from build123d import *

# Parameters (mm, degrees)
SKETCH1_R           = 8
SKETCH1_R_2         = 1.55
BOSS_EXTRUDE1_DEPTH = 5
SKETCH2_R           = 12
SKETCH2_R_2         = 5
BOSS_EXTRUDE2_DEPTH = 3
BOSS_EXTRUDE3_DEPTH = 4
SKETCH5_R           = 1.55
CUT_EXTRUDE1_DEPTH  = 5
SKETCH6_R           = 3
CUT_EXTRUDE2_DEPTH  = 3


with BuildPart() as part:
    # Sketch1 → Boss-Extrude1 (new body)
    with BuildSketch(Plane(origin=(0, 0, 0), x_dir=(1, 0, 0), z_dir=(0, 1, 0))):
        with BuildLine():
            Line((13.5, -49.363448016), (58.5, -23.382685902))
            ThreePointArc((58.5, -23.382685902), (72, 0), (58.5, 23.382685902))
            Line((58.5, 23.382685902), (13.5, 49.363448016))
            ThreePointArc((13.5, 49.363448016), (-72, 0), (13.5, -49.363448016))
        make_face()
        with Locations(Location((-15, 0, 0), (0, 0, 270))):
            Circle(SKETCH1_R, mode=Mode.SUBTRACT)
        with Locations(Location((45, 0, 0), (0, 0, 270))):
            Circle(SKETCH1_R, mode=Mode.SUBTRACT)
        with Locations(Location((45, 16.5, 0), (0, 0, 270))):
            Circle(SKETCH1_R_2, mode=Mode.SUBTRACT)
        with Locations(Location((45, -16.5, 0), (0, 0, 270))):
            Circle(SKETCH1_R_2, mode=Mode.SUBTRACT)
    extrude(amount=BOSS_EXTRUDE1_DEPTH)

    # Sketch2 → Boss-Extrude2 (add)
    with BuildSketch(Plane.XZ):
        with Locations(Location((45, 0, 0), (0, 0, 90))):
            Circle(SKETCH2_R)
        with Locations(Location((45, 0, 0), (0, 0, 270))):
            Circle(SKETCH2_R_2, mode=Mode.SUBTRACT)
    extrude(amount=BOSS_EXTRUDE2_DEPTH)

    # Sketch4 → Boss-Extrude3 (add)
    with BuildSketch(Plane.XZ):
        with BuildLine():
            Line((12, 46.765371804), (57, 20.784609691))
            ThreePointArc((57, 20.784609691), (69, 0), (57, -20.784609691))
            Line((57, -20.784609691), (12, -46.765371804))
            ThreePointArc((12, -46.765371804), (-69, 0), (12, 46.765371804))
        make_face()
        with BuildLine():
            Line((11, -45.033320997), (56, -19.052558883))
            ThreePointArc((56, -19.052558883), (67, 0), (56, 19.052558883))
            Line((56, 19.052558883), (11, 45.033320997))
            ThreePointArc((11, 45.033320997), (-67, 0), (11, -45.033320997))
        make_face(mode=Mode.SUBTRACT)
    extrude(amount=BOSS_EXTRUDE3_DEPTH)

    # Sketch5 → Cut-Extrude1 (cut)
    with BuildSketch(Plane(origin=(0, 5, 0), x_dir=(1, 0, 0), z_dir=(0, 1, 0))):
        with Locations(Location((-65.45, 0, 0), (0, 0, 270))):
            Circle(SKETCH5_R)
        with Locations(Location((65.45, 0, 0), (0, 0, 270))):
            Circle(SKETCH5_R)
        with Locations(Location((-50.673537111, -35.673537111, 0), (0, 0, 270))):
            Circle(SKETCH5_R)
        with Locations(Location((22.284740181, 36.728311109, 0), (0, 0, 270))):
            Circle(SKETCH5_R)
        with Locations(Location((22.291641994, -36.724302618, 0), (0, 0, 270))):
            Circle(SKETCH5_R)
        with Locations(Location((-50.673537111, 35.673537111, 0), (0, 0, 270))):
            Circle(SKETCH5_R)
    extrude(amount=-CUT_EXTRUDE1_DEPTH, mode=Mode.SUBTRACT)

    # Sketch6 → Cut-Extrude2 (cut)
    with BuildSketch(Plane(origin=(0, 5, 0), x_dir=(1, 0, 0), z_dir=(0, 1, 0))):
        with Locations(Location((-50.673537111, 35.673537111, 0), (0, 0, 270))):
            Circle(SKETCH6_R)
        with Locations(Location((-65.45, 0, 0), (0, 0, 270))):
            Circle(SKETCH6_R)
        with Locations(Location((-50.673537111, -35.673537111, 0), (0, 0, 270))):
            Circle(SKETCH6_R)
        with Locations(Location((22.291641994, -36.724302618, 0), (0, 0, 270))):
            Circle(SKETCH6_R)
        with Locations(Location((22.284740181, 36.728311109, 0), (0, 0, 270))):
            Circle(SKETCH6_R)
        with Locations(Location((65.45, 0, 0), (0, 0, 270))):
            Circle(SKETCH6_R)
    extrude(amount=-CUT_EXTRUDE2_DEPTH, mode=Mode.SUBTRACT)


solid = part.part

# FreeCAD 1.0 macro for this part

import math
import FreeCAD as App
import Part
import Sketcher
Q = App.Units.Quantity

doc = App.newDocument("Part")
body = doc.addObject("PartDesign::Body", "Body")

# Sketch on XZ plane
sketch1 = body.newObject("Sketcher::SketchObject", "Sketch")
sketch1.AttachmentSupport = (doc.getObject("XZ_Plane"), [""])
sketch1.MapMode = "FlatFace"
sketch1.addGeometry(Part.LineSegment(App.Vector(13.5, 49.4, 0), App.Vector(58.5, 23.4, 0)), False)
sketch1.addGeometry(Part.ArcOfCircle(Part.Circle(App.Vector(45, 0, 0), App.Vector(0, 0, 1), 27), math.radians(-60), math.radians(60)), False)
sketch1.addGeometry(Part.LineSegment(App.Vector(58.5, -23.4, 0), App.Vector(13.5, -49.4, 0)), False)
sketch1.addGeometry(Part.ArcOfCircle(Part.Circle(App.Vector(-15, 0, 0), App.Vector(0, 0, 1), 57), math.radians(60), math.radians(300)), False)
sketch1.addGeometry(Part.Circle(App.Vector(45, 16.5, 0), App.Vector(0, 0, 1), 1.6), False)
sketch1.addGeometry(Part.Circle(App.Vector(-15, 0, 0), App.Vector(0, 0, 1), 8), False)
sketch1.addGeometry(Part.Circle(App.Vector(45, 0, 0), App.Vector(0, 0, 1), 8), False)
sketch1.addGeometry(Part.Circle(App.Vector(45, -16.5, 0), App.Vector(0, 0, 1), 1.6), False)
sketch1.addConstraint(Sketcher.Constraint("Tangent", 0, 2, 1, 2))
sketch1.addConstraint(Sketcher.Constraint("Tangent", 1, 1, 2, 1))
sketch1.addConstraint(Sketcher.Constraint("Tangent", 2, 2, 3, 2))
sketch1.addConstraint(Sketcher.Constraint("Tangent", 3, 1, 0, 1))
sketch1.addConstraint(Sketcher.Constraint("Coincident", 5, 3, 3, 3))
sketch1.addConstraint(Sketcher.Constraint("Coincident", 6, 3, 1, 3))
sketch1.addConstraint(Sketcher.Constraint("Equal", 5, 6))
sketch1.addConstraint(Sketcher.Constraint("Equal", 4, 7))
sketch1.addConstraint(Sketcher.Constraint("Symmetric", 4, 3, 7, 3, -1))
sketch1.addConstraint(Sketcher.Constraint("Symmetric", 0, 2, 1, 1, -1))
sketch1.addConstraint(Sketcher.Constraint("Vertical", 1, 3, 4, 3))
sketch1.addConstraint(Sketcher.Constraint("Diameter", 5, 16.0))
sketch1.addConstraint(Sketcher.Constraint("Radius", 1, 27.0))
sketch1.addConstraint(Sketcher.Constraint("Radius", 3, 57.0))
sketch1.addConstraint(Sketcher.Constraint("Diameter", 4, 3.1))
sketch1.addConstraint(Sketcher.Constraint("Angle", 0, Q("-30 deg")))
sketch1.addConstraint(Sketcher.Constraint("DistanceX", -1, 1, 1, 3, 45.0))
sketch1.addConstraint(Sketcher.Constraint("DistanceY", 7, 3, 4, 3, 33.0))
pad1 = body.newObject("PartDesign::Pad", "Pad")
pad1.Profile = sketch1
pad1.Length = 5
pad1.Reversed = True

# Sketch on XZ plane
sketch2 = body.newObject("Sketcher::SketchObject", "Sketch001")
sketch2.AttachmentSupport = (doc.getObject("XZ_Plane"), [""])
sketch2.MapMode = "FlatFace"
sketch2.addGeometry(Part.Circle(App.Vector(45, 0, 0), App.Vector(0, 0, 1), 12), False)
sketch2.addGeometry(Part.Circle(App.Vector(45, 0, 0), App.Vector(0, 0, 1), 5), False)
sketch2.addConstraint(Sketcher.Constraint("Coincident", 1, 3, 0, 3))
sketch2.addConstraint(Sketcher.Constraint("PointOnObject", 0, 3, -1))
sketch2.addConstraint(Sketcher.Constraint("Diameter", 0, 24.0))
sketch2.addConstraint(Sketcher.Constraint("Diameter", 1, 10.0))
sketch2.addConstraint(Sketcher.Constraint("DistanceX", -1, 1, 0, 3, 45.0))
pad2 = body.newObject("PartDesign::Pad", "Pad001")
pad2.Profile = sketch2
pad2.Length = 3

# Sketch on XZ plane
sketch3 = body.newObject("Sketcher::SketchObject", "Sketch002")
sketch3.AttachmentSupport = (doc.getObject("XZ_Plane"), [""])
sketch3.MapMode = "FlatFace"
sketch3.addGeometry(Part.LineSegment(App.Vector(57, 21, 0), App.Vector(12, 47, 0)), False)
sketch3.addGeometry(Part.ArcOfCircle(Part.Circle(App.Vector(-15, 0, 0), App.Vector(0, 0, 1), 54), math.radians(60), math.radians(300)), False)
sketch3.addGeometry(Part.LineSegment(App.Vector(12, -47, 0), App.Vector(57, -21, 0)), False)
sketch3.addGeometry(Part.ArcOfCircle(Part.Circle(App.Vector(45, 0, 0), App.Vector(0, 0, 1), 24), math.radians(-60), math.radians(60)), False)
sketch3.addGeometry(Part.ArcOfCircle(Part.Circle(App.Vector(-15, 0, 0), App.Vector(0, 0, 1), 52), math.radians(60), math.radians(300)), False)
sketch3.addGeometry(Part.LineSegment(App.Vector(11, 45, 0), App.Vector(56, 19, 0)), False)
sketch3.addGeometry(Part.ArcOfCircle(Part.Circle(App.Vector(45, 0, 0), App.Vector(0, 0, 1), 22), math.radians(-60), math.radians(60)), False)
sketch3.addGeometry(Part.LineSegment(App.Vector(56, -19, 0), App.Vector(11, -45, 0)), False)
sketch3.addConstraint(Sketcher.Constraint("Tangent", 0, 2, 1, 1))
sketch3.addConstraint(Sketcher.Constraint("Tangent", 1, 2, 2, 1))
sketch3.addConstraint(Sketcher.Constraint("Tangent", 2, 2, 3, 1))
sketch3.addConstraint(Sketcher.Constraint("Tangent", 3, 2, 0, 1))
sketch3.addConstraint(Sketcher.Constraint("Tangent", 4, 1, 5, 1))
sketch3.addConstraint(Sketcher.Constraint("Tangent", 5, 2, 6, 2))
sketch3.addConstraint(Sketcher.Constraint("Tangent", 6, 1, 7, 1))
sketch3.addConstraint(Sketcher.Constraint("Tangent", 7, 2, 4, 2))
sketch3.addConstraint(Sketcher.Constraint("Coincident", 4, 3, 1, 3))
sketch3.addConstraint(Sketcher.Constraint("Coincident", 6, 3, 3, 3))
sketch3.addConstraint(Sketcher.Constraint("Symmetric", 0, 2, 1, 2, -1))
sketch3.addConstraint(Sketcher.Constraint("Parallel", 0, 5))
sketch3.addConstraint(Sketcher.Constraint("Radius", 1, 54.0))
sketch3.addConstraint(Sketcher.Constraint("Radius", 3, 24.0))
sketch3.addConstraint(Sketcher.Constraint("Radius", 4, 52.0))
sketch3.addConstraint(Sketcher.Constraint("Angle", 0, Q("150 deg")))
sketch3.addConstraint(Sketcher.Constraint("DistanceX", 1, 3, -1, 1, 15.0))
pad3 = body.newObject("PartDesign::Pad", "Pad002")
pad3.Profile = sketch3
pad3.Length = 4

# Sketch on XZ plane
sketch4 = body.newObject("Sketcher::SketchObject", "Sketch003")
sketch4.AttachmentSupport = (doc.getObject("XZ_Plane"), [""])
sketch4.MapMode = "FlatFace"
sketch4.AttachmentOffset = App.Placement(App.Vector(0, 0, -5), App.Rotation())
sketch4.addGeometry(Part.Circle(App.Vector(-65.5, 0, 0), App.Vector(0, 0, 1), 1.6), False)
sketch4.addGeometry(Part.Circle(App.Vector(65.5, 0, 0), App.Vector(0, 0, 1), 1.6), False)
sketch4.addGeometry(Part.Circle(App.Vector(-50.7, 35.7, 0), App.Vector(0, 0, 1), 1.6), False)
sketch4.addGeometry(Part.Circle(App.Vector(22.3, -36.7, 0), App.Vector(0, 0, 1), 1.6), False)
sketch4.addGeometry(Part.Circle(App.Vector(22.3, 36.7, 0), App.Vector(0, 0, 1), 1.6), False)
sketch4.addGeometry(Part.Circle(App.Vector(-50.7, -35.7, 0), App.Vector(0, 0, 1), 1.6), False)
sketch4.addConstraint(Sketcher.Constraint("Equal", 0, 1))
sketch4.addConstraint(Sketcher.Constraint("Equal", 1, 2))
sketch4.addConstraint(Sketcher.Constraint("Equal", 2, 3))
sketch4.addConstraint(Sketcher.Constraint("Equal", 3, 4))
sketch4.addConstraint(Sketcher.Constraint("Equal", 4, 5))
sketch4.addConstraint(Sketcher.Constraint("Symmetric", 0, 3, 1, 3, -1, 1))
sketch4.addConstraint(Sketcher.Constraint("Symmetric", 2, 3, 5, 3, -1))
sketch4.addConstraint(Sketcher.Constraint("PointOnObject", 0, 3, -1))
sketch4.addConstraint(Sketcher.Constraint("Diameter", 0, 3.1))
sketch4.addConstraint(Sketcher.Constraint("DistanceX", 0, 3, 1, 3, 130.9))
sketch4.addConstraint(Sketcher.Constraint("DistanceX", 3, 3, 4, 3, 0.006902))
sketch4.addConstraint(Sketcher.Constraint("DistanceX", -1, 1, 3, 3, 22.28474))
sketch4.addConstraint(Sketcher.Constraint("DistanceY", 3, 3, -1, 1, 36.728311))
sketch4.addConstraint(Sketcher.Constraint("DistanceY", 3, 3, 2, 3, 72.401848))
sketch4.addConstraint(Sketcher.Constraint("DistanceX", 2, 3, 4, 3, 72.965179))
sketch4.addConstraint(Sketcher.Constraint("DistanceY", 5, 3, 4, 3, 72.39784))
pocket1 = body.newObject("PartDesign::Pocket", "Pocket")
pocket1.Profile = sketch4
pocket1.Length = 5
pocket1.Reversed = True

# Sketch on XZ plane
sketch5 = body.newObject("Sketcher::SketchObject", "Sketch004")
sketch5.AttachmentSupport = (doc.getObject("XZ_Plane"), [""])
sketch5.MapMode = "FlatFace"
sketch5.AttachmentOffset = App.Placement(App.Vector(0, 0, -5), App.Rotation())
sketch5.addGeometry(Part.Circle(App.Vector(-50.7, -35.7, 0), App.Vector(0, 0, 1), 3), False)
sketch5.addGeometry(Part.Circle(App.Vector(-65.5, 0, 0), App.Vector(0, 0, 1), 3), False)
sketch5.addGeometry(Part.Circle(App.Vector(-50.7, 35.7, 0), App.Vector(0, 0, 1), 3), False)
sketch5.addGeometry(Part.Circle(App.Vector(22.3, 36.7, 0), App.Vector(0, 0, 1), 3), False)
sketch5.addGeometry(Part.Circle(App.Vector(22.3, -36.7, 0), App.Vector(0, 0, 1), 3), False)
sketch5.addGeometry(Part.Circle(App.Vector(65.5, 0, 0), App.Vector(0, 0, 1), 3), False)
sketch5.addConstraint(Sketcher.Constraint("Equal", 0, 1))
sketch5.addConstraint(Sketcher.Constraint("Equal", 1, 2))
sketch5.addConstraint(Sketcher.Constraint("Equal", 2, 3))
sketch5.addConstraint(Sketcher.Constraint("Equal", 3, 4))
sketch5.addConstraint(Sketcher.Constraint("Equal", 4, 5))
sketch5.addConstraint(Sketcher.Constraint("Symmetric", 1, 3, 5, 3, -1, 1))
sketch5.addConstraint(Sketcher.Constraint("Symmetric", 0, 3, 2, 3, -1))
sketch5.addConstraint(Sketcher.Constraint("PointOnObject", 1, 3, -1))
sketch5.addConstraint(Sketcher.Constraint("Diameter", 0, 6.0))
sketch5.addConstraint(Sketcher.Constraint("DistanceX", 1, 3, 5, 3, 130.9))
sketch5.addConstraint(Sketcher.Constraint("DistanceX", 4, 3, 3, 3, 0.006902))
sketch5.addConstraint(Sketcher.Constraint("DistanceX", -1, 1, 3, 3, 22.291642))
sketch5.addConstraint(Sketcher.Constraint("DistanceY", 4, 3, -1, 1, 36.728311))
sketch5.addConstraint(Sketcher.Constraint("DistanceX", 2, 3, 3, 3, 72.965179))
sketch5.addConstraint(Sketcher.Constraint("DistanceY", 0, 3, 3, 3, 72.39784))
sketch5.addConstraint(Sketcher.Constraint("DistanceY", 4, 3, 2, 3, 72.401848))
pocket2 = body.newObject("PartDesign::Pocket", "Pocket001")
pocket2.Profile = sketch5
pocket2.Length = 3
pocket2.Reversed = True

doc.recompute()
